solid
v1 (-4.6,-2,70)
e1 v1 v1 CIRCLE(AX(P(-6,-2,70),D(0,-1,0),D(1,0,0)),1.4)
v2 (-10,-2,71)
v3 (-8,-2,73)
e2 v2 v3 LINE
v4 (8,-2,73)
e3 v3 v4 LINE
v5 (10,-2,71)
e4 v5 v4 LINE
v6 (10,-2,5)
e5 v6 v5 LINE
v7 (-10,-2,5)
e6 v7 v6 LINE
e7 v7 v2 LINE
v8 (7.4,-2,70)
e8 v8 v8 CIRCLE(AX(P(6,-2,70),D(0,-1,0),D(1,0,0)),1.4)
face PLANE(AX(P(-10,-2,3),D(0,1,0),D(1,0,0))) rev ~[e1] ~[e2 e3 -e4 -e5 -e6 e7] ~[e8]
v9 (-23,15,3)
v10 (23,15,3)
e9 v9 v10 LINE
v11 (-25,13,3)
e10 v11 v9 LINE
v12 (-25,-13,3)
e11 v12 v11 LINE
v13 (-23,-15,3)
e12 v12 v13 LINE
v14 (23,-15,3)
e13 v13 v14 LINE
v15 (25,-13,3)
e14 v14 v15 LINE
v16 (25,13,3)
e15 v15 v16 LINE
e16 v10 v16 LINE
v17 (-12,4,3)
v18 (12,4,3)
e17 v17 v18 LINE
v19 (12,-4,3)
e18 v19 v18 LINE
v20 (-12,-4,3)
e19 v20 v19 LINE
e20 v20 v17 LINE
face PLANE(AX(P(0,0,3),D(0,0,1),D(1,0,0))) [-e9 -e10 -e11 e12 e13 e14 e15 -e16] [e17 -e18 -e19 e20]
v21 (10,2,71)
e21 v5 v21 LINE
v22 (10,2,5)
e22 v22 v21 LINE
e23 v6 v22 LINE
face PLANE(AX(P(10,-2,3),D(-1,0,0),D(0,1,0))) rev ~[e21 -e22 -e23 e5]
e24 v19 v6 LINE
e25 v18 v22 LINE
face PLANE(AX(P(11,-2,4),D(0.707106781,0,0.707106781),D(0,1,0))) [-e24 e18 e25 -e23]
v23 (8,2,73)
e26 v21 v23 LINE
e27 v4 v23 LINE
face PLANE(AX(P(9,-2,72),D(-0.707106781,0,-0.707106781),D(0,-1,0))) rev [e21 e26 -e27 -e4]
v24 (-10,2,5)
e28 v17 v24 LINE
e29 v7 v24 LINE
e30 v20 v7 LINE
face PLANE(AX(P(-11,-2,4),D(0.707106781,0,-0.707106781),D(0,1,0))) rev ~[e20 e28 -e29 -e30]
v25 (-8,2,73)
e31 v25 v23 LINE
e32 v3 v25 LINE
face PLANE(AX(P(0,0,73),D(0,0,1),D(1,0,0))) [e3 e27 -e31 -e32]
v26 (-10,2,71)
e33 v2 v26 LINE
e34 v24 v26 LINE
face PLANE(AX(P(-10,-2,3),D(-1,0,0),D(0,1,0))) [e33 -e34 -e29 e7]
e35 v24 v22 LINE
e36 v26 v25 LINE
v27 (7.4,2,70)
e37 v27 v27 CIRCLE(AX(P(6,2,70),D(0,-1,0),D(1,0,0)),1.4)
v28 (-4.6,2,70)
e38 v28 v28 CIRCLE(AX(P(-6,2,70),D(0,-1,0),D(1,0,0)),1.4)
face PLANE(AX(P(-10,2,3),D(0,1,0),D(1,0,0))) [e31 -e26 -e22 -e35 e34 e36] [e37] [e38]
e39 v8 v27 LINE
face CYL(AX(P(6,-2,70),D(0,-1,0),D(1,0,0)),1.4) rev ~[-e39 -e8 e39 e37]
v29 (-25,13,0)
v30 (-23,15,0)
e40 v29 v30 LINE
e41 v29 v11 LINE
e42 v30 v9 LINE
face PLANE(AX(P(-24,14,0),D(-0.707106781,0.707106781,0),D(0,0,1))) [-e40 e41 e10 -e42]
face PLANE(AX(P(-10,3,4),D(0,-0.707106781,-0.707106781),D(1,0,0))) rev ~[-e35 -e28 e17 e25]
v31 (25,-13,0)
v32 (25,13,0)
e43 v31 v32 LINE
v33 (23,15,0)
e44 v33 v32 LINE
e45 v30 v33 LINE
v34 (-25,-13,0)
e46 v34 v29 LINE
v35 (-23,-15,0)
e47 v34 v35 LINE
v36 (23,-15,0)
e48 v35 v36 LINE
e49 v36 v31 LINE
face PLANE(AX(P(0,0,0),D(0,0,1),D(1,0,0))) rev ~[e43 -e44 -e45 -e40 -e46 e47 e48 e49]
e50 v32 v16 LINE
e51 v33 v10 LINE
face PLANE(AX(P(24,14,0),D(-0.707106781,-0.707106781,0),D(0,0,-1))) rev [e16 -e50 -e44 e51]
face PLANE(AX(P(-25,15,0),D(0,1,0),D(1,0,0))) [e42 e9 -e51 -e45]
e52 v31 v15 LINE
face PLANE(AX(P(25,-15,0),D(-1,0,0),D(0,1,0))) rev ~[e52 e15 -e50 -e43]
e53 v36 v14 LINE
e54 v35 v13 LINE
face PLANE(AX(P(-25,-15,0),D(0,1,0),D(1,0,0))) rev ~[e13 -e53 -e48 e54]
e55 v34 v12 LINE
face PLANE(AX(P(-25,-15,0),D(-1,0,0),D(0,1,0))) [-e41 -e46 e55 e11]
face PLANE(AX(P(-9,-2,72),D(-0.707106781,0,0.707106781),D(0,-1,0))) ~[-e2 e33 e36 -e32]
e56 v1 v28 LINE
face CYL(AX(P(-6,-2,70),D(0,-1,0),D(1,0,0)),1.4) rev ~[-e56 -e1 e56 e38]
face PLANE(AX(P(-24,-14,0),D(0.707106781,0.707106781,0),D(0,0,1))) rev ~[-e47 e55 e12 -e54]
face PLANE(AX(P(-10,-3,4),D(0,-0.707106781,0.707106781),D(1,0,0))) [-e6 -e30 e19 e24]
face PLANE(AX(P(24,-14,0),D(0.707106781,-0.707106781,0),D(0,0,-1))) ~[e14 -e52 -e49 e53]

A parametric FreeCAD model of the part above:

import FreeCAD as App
import Part
import Sketcher


def edges_at(feature, points):
    """Names of the edges that pass closest to the given points."""
    edges = feature.Shape.Edges
    near = lambda p: min(range(len(edges)), key=lambda i: edges[i].distToShape(Part.Vertex(*p))[0])
    return sorted({f"Edge{near(p) + 1}" for p in points})

doc = App.newDocument("Part")
body = doc.addObject("PartDesign::Body", "Body")

# Sketch on XY plane
sketch1 = body.newObject("Sketcher::SketchObject", "Sketch")
sketch1.AttachmentSupport = (doc.getObject("XY_Plane"), [""])
sketch1.MapMode = "FlatFace"
sketch1.addGeometry([
    Part.LineSegment(App.Vector(-25, 15, 0), App.Vector(-25, -15, 0)),
    Part.LineSegment(App.Vector(-25, -15, 0), App.Vector(25, -15, 0)),
    Part.LineSegment(App.Vector(25, -15, 0), App.Vector(25, 15, 0)),
    Part.LineSegment(App.Vector(25, 15, 0), App.Vector(-25, 15, 0)),
], False)
sketch1.addConstraint([
    Sketcher.Constraint("Coincident", 0, 2, 1, 1),
    Sketcher.Constraint("Coincident", 1, 2, 2, 1),
    Sketcher.Constraint("Coincident", 2, 2, 3, 1),
    Sketcher.Constraint("Coincident", 3, 2, 0, 1),
    Sketcher.Constraint("Vertical", 0),
    Sketcher.Constraint("Horizontal", 1),
    Sketcher.Constraint("Vertical", 2),
    Sketcher.Constraint("Horizontal", 3),
    Sketcher.Constraint("Symmetric", 0, 2, 2, 2, -1, 1),
    Sketcher.Constraint("DistanceX", 1, 1, 1, 2, 50.0),
    Sketcher.Constraint("DistanceY", 0, 2, 0, 1, 30.0),
])
pad1 = body.newObject("PartDesign::Pad", "Pad")
pad1.Profile = sketch1
pad1.Length = 3

# Sketch on XY plane
sketch2 = body.newObject("Sketcher::SketchObject", "Sketch001")
sketch2.AttachmentSupport = (doc.getObject("XY_Plane"), [""])
sketch2.MapMode = "FlatFace"
sketch2.AttachmentOffset = App.Placement(App.Vector(0, 0, 3), App.Rotation())
sketch2.addGeometry([
    Part.LineSegment(App.Vector(-10, 2, 0), App.Vector(-10, -2, 0)),
    Part.LineSegment(App.Vector(-10, -2, 0), App.Vector(10, -2, 0)),
    Part.LineSegment(App.Vector(10, -2, 0), App.Vector(10, 2, 0)),
    Part.LineSegment(App.Vector(10, 2, 0), App.Vector(-10, 2, 0)),
], False)
sketch2.addConstraint([
    Sketcher.Constraint("Coincident", 0, 2, 1, 1),
    Sketcher.Constraint("Coincident", 1, 2, 2, 1),
    Sketcher.Constraint("Coincident", 2, 2, 3, 1),
    Sketcher.Constraint("Coincident", 3, 2, 0, 1),
    Sketcher.Constraint("Vertical", 0),
    Sketcher.Constraint("Horizontal", 1),
    Sketcher.Constraint("Vertical", 2),
    Sketcher.Constraint("Horizontal", 3),
    Sketcher.Constraint("Symmetric", 0, 2, 2, 2, -1, 1),
    Sketcher.Constraint("DistanceX", 1, 1, 1, 2, 20.0),
    Sketcher.Constraint("DistanceY", 0, 2, 0, 1, 4.0),
])
pad2 = body.newObject("PartDesign::Pad", "Pad001")
pad2.Profile = sketch2
pad2.Length = 70

# Sketch on XZ plane
sketch3 = body.newObject("Sketcher::SketchObject", "Sketch002")
sketch3.AttachmentSupport = (doc.getObject("XZ_Plane"), [""])
sketch3.MapMode = "FlatFace"
sketch3.AttachmentOffset = App.Placement(App.Vector(0, 0, 2), App.Rotation())
sketch3.addGeometry([
    Part.Circle(App.Vector(-6, 70, 0), App.Vector(0, 0, 1), 1.4),
    Part.Circle(App.Vector(6, 70, 0), App.Vector(0, 0, 1), 1.4),
], False)
sketch3.addConstraint([
    Sketcher.Constraint("Equal", 0, 1),
    Sketcher.Constraint("Symmetric", 0, 3, 1, 3, -2),
    Sketcher.Constraint("Diameter", 0, 2.8),
    Sketcher.Constraint("DistanceX", 0, 3, -1, 1, 6.0),
    Sketcher.Constraint("DistanceY", -1, 1, 0, 3, 70.0),
])
pocket1 = body.newObject("PartDesign::Pocket", "Pocket")
pocket1.Profile = sketch3
pocket1.Length = 5
doc.recompute()

chamfer = body.newObject("PartDesign::Chamfer", "Chamfer")
chamfer.Base = (pocket1, edges_at(pocket1, [
    (10, 0, 3),
    (0, -2, 3),
    (0, 2, 3),
    (-10, 0, 3),
]))
chamfer.Size = 2
doc.recompute()

chamfer2 = body.newObject("PartDesign::Chamfer", "Chamfer001")
chamfer2.Base = (chamfer, edges_at(chamfer, [
    (-25, -15, 1.5),
    (-25, 15, 1.5),
    (25, -15, 1.5),
    (25, 15, 1.5),
]))
chamfer2.Size = 2
doc.recompute()

chamfer3 = body.newObject("PartDesign::Chamfer", "Chamfer002")
chamfer3.Base = (chamfer2, edges_at(chamfer2, [(10, 0, 73), (-10, 0, 73)]))
chamfer3.Size = 2

doc.recompute()
